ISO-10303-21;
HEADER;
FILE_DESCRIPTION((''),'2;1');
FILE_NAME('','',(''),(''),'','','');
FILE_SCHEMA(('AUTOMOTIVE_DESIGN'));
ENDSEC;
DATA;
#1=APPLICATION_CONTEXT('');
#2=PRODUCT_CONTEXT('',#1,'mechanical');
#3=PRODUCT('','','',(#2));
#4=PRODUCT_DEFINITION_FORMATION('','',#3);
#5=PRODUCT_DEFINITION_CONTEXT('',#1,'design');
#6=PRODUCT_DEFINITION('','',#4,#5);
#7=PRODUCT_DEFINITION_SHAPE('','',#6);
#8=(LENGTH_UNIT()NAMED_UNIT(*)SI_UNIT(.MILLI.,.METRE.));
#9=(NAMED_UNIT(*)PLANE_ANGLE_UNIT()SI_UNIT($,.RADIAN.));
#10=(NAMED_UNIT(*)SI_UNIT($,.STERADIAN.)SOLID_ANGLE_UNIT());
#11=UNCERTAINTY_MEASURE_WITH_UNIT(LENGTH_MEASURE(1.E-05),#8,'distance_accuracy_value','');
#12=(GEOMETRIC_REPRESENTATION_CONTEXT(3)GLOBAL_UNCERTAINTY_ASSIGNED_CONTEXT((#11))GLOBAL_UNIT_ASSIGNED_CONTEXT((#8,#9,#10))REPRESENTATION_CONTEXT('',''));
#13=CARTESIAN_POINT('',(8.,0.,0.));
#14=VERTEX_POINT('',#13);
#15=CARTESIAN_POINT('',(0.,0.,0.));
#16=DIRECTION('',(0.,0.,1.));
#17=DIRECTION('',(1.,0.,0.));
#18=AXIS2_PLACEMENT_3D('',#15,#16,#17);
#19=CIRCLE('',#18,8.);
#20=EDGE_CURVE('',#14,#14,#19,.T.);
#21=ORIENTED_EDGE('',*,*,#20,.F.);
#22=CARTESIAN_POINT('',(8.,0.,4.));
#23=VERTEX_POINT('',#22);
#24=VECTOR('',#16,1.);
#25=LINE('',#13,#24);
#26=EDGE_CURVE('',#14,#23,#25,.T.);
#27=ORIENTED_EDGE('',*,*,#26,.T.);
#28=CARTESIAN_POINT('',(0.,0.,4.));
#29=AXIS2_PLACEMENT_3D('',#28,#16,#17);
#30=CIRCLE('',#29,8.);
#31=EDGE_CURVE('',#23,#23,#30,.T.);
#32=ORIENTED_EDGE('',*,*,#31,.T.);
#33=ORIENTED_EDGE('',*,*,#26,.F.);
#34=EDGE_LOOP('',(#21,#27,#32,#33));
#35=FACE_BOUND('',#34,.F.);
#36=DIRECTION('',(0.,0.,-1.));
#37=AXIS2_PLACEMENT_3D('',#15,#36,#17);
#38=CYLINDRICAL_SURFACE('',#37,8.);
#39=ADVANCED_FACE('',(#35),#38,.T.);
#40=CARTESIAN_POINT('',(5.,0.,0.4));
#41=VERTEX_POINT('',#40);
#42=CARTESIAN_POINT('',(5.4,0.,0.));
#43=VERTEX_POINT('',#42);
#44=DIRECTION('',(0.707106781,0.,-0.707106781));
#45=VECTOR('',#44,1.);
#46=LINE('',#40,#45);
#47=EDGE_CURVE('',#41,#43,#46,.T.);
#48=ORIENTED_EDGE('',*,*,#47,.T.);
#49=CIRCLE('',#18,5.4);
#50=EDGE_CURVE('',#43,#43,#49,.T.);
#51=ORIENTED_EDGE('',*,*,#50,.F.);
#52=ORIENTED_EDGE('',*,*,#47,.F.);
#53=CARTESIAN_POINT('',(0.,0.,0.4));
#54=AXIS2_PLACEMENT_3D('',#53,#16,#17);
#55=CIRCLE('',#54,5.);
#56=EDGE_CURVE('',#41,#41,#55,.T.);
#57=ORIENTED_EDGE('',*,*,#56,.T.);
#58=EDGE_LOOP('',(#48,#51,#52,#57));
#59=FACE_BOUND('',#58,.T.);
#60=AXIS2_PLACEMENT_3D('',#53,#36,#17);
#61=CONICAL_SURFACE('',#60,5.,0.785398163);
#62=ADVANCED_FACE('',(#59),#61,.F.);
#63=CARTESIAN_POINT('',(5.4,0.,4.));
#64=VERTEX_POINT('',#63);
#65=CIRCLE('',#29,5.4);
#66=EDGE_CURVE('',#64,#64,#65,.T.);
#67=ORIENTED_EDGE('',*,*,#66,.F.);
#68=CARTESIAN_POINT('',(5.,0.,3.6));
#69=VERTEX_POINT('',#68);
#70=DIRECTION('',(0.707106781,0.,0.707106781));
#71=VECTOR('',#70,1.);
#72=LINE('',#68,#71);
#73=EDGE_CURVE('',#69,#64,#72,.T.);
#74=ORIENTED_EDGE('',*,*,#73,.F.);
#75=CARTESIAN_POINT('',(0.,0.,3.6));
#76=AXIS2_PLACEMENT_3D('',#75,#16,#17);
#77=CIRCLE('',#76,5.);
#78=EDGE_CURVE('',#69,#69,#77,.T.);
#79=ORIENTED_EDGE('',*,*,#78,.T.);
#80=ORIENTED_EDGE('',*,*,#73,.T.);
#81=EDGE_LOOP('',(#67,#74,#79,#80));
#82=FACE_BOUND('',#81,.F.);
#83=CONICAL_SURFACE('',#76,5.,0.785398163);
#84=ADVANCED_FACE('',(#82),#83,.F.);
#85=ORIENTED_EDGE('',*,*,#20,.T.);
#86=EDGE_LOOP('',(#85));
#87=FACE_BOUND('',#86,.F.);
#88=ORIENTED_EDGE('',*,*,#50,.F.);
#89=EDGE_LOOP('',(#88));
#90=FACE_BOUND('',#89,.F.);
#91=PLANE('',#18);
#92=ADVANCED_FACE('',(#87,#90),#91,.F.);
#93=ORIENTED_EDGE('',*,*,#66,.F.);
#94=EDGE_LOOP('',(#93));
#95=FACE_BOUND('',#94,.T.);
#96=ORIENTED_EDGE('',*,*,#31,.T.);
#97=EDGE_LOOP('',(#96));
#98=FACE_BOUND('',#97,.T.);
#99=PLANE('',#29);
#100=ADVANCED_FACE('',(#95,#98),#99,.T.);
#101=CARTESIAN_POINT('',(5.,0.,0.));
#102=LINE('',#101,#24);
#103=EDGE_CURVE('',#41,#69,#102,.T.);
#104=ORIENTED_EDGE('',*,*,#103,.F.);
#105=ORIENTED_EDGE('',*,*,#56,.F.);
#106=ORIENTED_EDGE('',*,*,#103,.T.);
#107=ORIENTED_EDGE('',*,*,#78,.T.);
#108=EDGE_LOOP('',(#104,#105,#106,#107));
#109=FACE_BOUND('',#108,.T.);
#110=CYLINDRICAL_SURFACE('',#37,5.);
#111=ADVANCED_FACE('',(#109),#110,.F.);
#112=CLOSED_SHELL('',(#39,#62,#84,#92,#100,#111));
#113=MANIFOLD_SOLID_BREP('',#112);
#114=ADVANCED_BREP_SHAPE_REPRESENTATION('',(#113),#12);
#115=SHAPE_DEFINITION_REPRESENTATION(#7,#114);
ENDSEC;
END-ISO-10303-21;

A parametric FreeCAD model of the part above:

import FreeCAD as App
import Part
import Sketcher
Q = App.Units.Quantity


def edges_at(feature, points):
    """Names of the edges that pass closest to the given points."""
    edges = feature.Shape.Edges
    near = lambda p: min(range(len(edges)), key=lambda i: edges[i].distToShape(Part.Vertex(*p))[0])
    return sorted({f"Edge{near(p) + 1}" for p in points})

doc = App.newDocument("Part")
body = doc.addObject("PartDesign::Body", "Body")

sketch1 = doc.addObject("Sketcher::SketchObject", "Sketch")
body.addObject(sketch1)
sketch1.AttachmentSupport = (doc.XY_Plane, [""])
sketch1.MapMode = "FlatFace"
sketch1.addGeometry([
    Part.Circle(App.Vector(0, 0, 0), App.Vector(0, 0, 1), 8),
    Part.Circle(App.Vector(0, 0, 0), App.Vector(0, 0, 1), 5),
], False)
sketch1.addConstraint([
    Sketcher.Constraint("Coincident", 0, 3, -1, 1),
    Sketcher.Constraint("Coincident", 1, 3, -1, 1),
    Sketcher.Constraint("Diameter", 0, Q("16 mm")),
    Sketcher.Constraint("Diameter", 1, Q("10 mm")),
])
pad1 = doc.addObject("PartDesign::Pad", "Pad")
body.addObject(pad1)
pad1.Profile = sketch1
pad1.Length = 4
doc.recompute()

chamfer = doc.addObject("PartDesign::Chamfer", "Chamfer")
body.addObject(chamfer)
chamfer.Base = (pad1, edges_at(pad1, [(-5, 0, 4)]))
chamfer.Size = 0.4
doc.recompute()

chamfer2 = doc.addObject("PartDesign::Chamfer", "Chamfer001")
body.addObject(chamfer2)
chamfer2.Base = (chamfer, edges_at(chamfer, [(-5, 0, 0)]))
chamfer2.Size = 0.4

doc.recompute()
